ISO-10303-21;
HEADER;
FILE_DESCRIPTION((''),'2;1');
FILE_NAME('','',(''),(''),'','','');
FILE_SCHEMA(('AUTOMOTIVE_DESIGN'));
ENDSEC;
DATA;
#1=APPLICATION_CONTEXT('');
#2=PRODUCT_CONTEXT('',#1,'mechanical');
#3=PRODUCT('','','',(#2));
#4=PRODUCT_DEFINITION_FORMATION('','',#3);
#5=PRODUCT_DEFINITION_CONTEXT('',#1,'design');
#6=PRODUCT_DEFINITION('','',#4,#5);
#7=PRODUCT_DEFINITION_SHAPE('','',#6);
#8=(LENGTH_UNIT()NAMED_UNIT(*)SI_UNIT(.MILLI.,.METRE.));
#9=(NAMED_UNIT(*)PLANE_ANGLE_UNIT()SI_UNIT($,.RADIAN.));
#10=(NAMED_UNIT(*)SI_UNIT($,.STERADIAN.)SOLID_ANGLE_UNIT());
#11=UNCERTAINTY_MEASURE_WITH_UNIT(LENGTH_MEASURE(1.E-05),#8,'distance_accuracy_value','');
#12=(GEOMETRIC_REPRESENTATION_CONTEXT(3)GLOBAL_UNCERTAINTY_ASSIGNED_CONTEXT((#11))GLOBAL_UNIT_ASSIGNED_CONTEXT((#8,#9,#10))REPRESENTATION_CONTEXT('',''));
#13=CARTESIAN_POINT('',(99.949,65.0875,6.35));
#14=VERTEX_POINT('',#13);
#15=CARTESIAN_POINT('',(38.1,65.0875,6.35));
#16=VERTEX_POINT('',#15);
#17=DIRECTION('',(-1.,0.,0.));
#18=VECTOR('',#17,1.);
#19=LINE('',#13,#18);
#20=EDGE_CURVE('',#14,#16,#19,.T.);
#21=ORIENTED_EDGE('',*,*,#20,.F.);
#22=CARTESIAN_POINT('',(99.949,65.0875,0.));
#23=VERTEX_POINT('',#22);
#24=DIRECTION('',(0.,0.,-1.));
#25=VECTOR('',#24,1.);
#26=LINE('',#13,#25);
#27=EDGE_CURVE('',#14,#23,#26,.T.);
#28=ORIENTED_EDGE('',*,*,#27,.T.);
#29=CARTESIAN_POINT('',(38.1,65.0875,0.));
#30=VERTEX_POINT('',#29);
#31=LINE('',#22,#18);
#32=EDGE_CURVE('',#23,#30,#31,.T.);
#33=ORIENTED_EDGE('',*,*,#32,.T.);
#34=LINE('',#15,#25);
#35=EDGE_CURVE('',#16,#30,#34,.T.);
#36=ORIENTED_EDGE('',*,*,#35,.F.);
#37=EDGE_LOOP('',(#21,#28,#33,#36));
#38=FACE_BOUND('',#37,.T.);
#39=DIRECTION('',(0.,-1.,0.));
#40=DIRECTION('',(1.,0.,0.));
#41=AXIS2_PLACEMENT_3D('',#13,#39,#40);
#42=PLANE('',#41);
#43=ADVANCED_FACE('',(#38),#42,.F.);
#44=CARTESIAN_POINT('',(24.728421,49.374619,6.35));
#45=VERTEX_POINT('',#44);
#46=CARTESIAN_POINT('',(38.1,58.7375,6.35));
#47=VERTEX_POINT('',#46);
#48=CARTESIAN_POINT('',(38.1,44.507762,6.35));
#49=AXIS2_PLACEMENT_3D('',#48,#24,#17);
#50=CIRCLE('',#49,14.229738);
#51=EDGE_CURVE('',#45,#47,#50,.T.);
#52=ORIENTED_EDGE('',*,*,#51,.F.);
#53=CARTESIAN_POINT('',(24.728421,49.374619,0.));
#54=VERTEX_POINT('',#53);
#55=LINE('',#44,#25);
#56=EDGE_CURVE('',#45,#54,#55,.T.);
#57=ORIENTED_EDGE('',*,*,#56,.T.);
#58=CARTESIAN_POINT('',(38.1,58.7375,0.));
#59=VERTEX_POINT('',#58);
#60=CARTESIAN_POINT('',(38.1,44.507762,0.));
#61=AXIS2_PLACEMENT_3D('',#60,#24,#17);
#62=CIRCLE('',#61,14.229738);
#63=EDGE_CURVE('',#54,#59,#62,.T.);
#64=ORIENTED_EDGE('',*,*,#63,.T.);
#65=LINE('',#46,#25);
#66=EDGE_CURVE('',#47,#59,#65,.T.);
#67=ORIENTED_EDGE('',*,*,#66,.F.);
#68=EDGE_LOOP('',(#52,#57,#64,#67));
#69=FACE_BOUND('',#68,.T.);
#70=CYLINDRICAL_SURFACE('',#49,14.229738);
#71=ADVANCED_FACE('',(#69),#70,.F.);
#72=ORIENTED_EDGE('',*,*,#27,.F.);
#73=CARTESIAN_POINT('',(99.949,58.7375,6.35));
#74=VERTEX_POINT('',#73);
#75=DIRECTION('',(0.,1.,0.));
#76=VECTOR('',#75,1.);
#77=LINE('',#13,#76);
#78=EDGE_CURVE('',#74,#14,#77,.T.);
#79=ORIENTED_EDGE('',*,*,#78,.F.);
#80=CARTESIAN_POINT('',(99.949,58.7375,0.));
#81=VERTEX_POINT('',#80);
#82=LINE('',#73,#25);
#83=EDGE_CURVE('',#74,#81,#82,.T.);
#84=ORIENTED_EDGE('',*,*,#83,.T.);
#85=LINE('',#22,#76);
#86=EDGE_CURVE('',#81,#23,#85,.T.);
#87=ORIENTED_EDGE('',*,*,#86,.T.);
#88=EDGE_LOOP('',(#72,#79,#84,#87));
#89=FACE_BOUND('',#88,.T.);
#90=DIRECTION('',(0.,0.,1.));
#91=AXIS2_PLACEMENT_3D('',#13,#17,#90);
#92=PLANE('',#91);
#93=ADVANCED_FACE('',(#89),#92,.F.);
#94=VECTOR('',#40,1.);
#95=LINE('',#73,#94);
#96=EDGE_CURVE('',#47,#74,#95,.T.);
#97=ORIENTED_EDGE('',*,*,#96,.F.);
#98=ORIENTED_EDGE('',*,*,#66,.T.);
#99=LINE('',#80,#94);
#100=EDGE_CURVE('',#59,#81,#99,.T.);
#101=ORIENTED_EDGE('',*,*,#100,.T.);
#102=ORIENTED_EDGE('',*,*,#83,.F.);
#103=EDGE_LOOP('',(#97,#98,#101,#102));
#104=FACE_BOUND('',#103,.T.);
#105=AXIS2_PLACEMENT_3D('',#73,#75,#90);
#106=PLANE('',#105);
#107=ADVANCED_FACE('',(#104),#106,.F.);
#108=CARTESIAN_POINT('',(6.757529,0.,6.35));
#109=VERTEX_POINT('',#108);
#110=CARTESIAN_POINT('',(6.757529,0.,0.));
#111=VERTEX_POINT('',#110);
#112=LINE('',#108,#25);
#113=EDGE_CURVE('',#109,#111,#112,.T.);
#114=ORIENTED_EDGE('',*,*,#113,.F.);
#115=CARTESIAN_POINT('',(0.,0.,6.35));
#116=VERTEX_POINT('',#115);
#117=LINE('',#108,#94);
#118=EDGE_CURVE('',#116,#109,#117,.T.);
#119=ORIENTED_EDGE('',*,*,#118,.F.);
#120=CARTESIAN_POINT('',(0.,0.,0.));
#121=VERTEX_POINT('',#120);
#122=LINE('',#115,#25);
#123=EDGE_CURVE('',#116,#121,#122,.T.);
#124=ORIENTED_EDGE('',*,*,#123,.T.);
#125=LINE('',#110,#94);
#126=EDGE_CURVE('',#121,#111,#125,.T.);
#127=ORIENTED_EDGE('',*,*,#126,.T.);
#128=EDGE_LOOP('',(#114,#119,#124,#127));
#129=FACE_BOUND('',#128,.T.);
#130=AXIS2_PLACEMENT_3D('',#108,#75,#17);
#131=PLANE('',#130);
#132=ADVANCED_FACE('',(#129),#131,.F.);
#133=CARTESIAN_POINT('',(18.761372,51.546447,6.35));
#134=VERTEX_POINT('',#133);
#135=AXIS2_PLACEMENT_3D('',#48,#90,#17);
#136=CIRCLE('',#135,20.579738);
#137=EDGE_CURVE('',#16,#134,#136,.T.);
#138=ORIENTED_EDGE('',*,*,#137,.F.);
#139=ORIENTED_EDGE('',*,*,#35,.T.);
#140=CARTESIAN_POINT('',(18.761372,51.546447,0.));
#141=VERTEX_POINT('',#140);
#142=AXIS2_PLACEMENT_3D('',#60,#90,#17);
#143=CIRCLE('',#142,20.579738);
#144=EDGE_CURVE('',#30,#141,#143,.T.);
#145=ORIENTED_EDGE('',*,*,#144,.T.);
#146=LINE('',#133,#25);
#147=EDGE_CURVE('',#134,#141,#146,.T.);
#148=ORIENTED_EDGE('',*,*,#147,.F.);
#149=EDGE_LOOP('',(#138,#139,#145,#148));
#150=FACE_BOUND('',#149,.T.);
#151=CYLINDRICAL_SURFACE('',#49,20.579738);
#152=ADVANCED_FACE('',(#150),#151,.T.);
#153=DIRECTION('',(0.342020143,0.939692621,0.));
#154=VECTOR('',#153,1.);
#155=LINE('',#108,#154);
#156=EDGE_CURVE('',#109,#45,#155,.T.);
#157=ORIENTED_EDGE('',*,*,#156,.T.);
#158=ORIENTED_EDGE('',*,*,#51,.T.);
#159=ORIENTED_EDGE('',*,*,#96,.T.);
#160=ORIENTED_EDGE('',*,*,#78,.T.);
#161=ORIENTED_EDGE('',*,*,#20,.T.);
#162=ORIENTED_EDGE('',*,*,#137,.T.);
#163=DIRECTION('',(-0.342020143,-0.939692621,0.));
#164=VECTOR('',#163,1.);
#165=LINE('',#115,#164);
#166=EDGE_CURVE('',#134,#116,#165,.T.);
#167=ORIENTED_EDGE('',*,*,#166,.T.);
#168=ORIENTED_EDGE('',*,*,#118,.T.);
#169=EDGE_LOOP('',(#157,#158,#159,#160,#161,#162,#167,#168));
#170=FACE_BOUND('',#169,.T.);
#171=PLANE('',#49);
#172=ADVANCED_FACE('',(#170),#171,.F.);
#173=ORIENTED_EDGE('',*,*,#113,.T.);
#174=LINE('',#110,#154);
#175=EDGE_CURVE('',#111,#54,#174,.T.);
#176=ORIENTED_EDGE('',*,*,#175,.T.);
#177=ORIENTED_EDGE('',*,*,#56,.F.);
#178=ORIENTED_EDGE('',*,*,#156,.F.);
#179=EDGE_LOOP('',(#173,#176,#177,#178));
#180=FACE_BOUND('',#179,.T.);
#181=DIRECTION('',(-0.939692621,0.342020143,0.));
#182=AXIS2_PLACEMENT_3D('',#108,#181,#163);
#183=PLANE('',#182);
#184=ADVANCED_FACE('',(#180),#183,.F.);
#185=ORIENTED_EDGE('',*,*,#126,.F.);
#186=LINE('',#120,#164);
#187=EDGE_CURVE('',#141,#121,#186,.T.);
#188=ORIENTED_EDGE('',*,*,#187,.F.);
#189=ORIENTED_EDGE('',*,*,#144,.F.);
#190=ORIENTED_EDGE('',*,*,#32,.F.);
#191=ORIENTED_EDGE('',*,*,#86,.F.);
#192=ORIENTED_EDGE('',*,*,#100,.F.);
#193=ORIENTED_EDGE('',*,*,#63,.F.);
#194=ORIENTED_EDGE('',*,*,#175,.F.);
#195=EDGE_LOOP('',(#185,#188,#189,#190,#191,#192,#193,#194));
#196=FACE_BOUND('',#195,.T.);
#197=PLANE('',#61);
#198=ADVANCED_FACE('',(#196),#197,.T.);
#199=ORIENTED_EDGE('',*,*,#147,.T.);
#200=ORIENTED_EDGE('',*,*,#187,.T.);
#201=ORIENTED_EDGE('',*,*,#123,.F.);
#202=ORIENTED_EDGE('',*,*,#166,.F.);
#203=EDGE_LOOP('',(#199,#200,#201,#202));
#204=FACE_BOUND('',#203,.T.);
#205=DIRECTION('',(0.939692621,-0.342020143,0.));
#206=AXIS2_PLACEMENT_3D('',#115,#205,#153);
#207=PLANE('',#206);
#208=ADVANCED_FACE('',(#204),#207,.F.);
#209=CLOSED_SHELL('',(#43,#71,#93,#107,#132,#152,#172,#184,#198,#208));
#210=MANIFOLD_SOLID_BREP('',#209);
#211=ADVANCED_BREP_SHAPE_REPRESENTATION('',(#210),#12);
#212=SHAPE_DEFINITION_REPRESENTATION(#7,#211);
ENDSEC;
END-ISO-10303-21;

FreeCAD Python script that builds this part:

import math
import FreeCAD as App
import Part
import Sketcher
Q = App.Units.Quantity

doc = App.newDocument("Part")
body = doc.addObject("PartDesign::Body", "Body")

# Sketch on XY plane
sketch1 = body.newObject("Sketcher::SketchObject", "Sketch")
sketch1.AttachmentSupport = (doc.getObject("XY_Plane"), [""])
sketch1.MapMode = "FlatFace"
sketch1.addGeometry([
    Part.LineSegment(App.Vector(100, 59, 0), App.Vector(100, 65, 0)),  # 0
    Part.LineSegment(App.Vector(100, 65, 0), App.Vector(38, 65, 0)),  # 1
    Part.ArcOfCircle(Part.Circle(App.Vector(38, 45, 0), App.Vector(0, 0, 1), 21), math.radians(90), math.radians(160)),  # 2
    Part.LineSegment(App.Vector(19, 52, 0), App.Vector(0, 0, 0)),  # 3
    Part.LineSegment(App.Vector(0, 0, 0), App.Vector(7, 0, 0)),  # 4
    Part.LineSegment(App.Vector(7, 0, 0), App.Vector(25, 49, 0)),  # 5
    Part.ArcOfCircle(Part.Circle(App.Vector(38, 45, 0), App.Vector(0, 0, 1), 14), math.radians(90), math.radians(160)),  # 6
    Part.LineSegment(App.Vector(38, 59, 0), App.Vector(100, 59, 0)),  # 7
], False)
sketch1.addConstraint([
    Sketcher.Constraint("Coincident", 0, 2, 1, 1),
    Sketcher.Constraint("Tangent", 1, 2, 2, 1),
    Sketcher.Constraint("Tangent", 2, 2, 3, 1),
    Sketcher.Constraint("Coincident", 3, 2, 4, 1),
    Sketcher.Constraint("Coincident", 4, 2, 5, 1),
    Sketcher.Constraint("Tangent", 5, 2, 6, 2),
    Sketcher.Constraint("Tangent", 6, 1, 7, 1),
    Sketcher.Constraint("Coincident", 7, 2, 0, 1),
    Sketcher.Constraint("Vertical", 0),
    Sketcher.Constraint("Horizontal", 1),
    Sketcher.Constraint("Horizontal", 4),
    Sketcher.Constraint("Horizontal", 7),
    Sketcher.Constraint("Coincident", 3, 2, -1, 1),
    Sketcher.Constraint("Coincident", 6, 3, 2, 3),
    Sketcher.Constraint("Parallel", 3, 5),
    Sketcher.Constraint("Angle", 3, Q("-110 deg")),
    Sketcher.Constraint("DistanceY", 0, 1, 0, 2, Q("0.25 in")),
    Sketcher.Constraint("DistanceX", -1, 1, 2, 3, Q("1.5 in")),
    Sketcher.Constraint("DistanceX", 1, 2, 1, 1, Q("2.435 in")),
    Sketcher.Constraint("DistanceY", -1, 1, 0, 2, Q("2.5625 in")),
])
pad1 = body.newObject("PartDesign::Pad", "Pad")
pad1.Profile = sketch1
pad1.Length = Q("0.25 in")

doc.recompute()
